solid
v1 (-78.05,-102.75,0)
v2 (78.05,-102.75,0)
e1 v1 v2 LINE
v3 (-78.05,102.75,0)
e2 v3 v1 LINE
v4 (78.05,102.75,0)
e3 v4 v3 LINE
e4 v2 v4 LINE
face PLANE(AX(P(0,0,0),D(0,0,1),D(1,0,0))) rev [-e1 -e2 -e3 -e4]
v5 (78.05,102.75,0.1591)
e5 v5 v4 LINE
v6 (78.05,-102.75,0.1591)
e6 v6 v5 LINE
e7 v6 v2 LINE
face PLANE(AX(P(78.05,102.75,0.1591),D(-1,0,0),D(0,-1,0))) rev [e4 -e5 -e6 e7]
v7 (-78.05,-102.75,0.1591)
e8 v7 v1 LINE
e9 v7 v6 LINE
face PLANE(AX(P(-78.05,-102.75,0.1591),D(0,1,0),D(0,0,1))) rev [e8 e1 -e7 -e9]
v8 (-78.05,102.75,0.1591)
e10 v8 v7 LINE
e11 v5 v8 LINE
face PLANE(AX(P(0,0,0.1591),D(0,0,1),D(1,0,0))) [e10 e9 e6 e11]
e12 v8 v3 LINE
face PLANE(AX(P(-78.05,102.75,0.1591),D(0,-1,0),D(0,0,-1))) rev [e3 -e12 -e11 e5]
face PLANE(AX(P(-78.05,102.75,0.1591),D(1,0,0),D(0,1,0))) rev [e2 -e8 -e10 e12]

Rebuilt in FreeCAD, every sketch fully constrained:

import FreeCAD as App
import Part
import Sketcher
from FreeCAD import Vector
Q = App.Units.Quantity

doc = App.newDocument("Part")
body = doc.addObject("PartDesign::Body", "Body")

sketch1 = body.newObject("Sketcher::SketchObject", "Sketch")
sketch1.AttachmentSupport = (doc.getObject("XY_Plane"), [""])
sketch1.MapMode = "FlatFace"
sketch1.addGeometry([
    Part.LineSegment(Vector(-78.05, 102.75, 0), Vector(-78.05, -102.75, 0)),
    Part.LineSegment(Vector(-78.05, -102.75, 0), Vector(78.05, -102.75, 0)),
    Part.LineSegment(Vector(78.05, -102.75, 0), Vector(78.05, 102.75, 0)),
    Part.LineSegment(Vector(78.05, 102.75, 0), Vector(-78.05, 102.75, 0)),
], False)
sketch1.addConstraint([
    Sketcher.Constraint("Coincident", 0, 2, 1, 1),
    Sketcher.Constraint("Coincident", 1, 2, 2, 1),
    Sketcher.Constraint("Coincident", 2, 2, 3, 1),
    Sketcher.Constraint("Coincident", 3, 2, 0, 1),
    Sketcher.Constraint("Vertical", 0),
    Sketcher.Constraint("Horizontal", 1),
    Sketcher.Constraint("Vertical", 2),
    Sketcher.Constraint("Horizontal", 3),
    Sketcher.Constraint("Symmetric", 0, 2, 2, 2, -1, 1),
    Sketcher.Constraint("DistanceX", 1, 1, 1, 2, Q("156.1 mm")),
    Sketcher.Constraint("DistanceY", 0, 2, 0, 1, Q("205.5 mm")),
])
pad1 = body.newObject("PartDesign::Pad", "Pad")
pad1.Profile = sketch1
pad1.Length = 0.1591

doc.recompute()
